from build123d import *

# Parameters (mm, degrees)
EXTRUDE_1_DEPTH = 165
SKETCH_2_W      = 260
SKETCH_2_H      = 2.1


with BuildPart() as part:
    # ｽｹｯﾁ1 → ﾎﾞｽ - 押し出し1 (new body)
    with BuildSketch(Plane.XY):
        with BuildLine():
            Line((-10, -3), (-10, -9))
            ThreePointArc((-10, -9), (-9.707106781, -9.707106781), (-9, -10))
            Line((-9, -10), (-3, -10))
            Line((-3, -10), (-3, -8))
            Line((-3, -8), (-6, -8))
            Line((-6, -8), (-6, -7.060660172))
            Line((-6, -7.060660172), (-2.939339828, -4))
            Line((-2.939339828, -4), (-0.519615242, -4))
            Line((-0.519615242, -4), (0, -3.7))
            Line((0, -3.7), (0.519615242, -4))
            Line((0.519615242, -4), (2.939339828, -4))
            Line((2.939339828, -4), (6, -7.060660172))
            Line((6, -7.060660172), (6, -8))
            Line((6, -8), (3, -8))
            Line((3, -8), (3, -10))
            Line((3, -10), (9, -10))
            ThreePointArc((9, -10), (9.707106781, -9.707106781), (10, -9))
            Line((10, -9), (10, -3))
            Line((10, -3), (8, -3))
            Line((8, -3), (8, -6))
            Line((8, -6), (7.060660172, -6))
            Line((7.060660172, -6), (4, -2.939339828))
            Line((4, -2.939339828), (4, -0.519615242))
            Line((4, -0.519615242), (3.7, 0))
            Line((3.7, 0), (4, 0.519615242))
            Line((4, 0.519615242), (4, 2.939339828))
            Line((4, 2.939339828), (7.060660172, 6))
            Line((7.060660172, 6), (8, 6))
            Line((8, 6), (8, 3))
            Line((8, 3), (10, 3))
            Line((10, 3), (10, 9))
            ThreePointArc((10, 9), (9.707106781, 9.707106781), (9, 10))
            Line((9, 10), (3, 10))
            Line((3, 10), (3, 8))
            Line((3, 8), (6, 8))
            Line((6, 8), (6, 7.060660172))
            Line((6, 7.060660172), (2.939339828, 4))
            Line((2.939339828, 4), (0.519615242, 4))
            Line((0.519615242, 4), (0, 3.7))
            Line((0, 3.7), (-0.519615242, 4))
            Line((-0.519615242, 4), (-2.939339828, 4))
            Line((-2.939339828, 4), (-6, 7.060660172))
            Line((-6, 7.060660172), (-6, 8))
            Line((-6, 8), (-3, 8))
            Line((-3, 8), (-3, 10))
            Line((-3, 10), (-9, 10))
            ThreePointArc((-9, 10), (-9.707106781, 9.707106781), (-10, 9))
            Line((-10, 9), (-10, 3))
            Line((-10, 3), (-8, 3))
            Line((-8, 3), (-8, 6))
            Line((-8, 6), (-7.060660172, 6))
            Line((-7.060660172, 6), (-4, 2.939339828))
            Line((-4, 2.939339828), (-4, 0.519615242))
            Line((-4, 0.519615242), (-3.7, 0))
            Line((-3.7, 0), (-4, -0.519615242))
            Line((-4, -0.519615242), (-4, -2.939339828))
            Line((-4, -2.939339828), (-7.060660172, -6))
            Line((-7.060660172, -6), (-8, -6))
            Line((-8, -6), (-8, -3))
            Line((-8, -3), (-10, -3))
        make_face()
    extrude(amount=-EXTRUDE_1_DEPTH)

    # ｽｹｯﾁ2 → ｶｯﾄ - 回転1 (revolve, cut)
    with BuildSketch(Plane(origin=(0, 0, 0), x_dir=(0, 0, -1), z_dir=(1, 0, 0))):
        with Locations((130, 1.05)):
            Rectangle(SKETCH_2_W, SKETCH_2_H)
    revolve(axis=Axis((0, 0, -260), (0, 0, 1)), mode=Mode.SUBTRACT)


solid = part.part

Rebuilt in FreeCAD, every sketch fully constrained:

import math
import FreeCAD as App
import Part
import Sketcher

V = App.Vector
Q = App.Units.Quantity

doc = App.newDocument("Part")
body = doc.addObject("PartDesign::Body", "Body")

# Sketch on XY plane
sketch1 = body.newObject("Sketcher::SketchObject", "Sketch")
sketch1.AttachmentSupport = (doc.getObject("XY_Plane"), [""])
sketch1.MapMode = "FlatFace"
sketch1.addGeometry([
    Part.LineSegment(V(-10, -3, 0), V(-10, -9, 0)),  # 0
    Part.ArcOfCircle(Part.Circle(V(-9, -9, 0), V(0, 0, 1), 1), math.radians(-180), math.radians(-90)),  # 1
    Part.LineSegment(V(-9, -10, 0), V(-3, -10, 0)),  # 2
    Part.LineSegment(V(-3, -10, 0), V(-3, -8, 0)),  # 3
    Part.LineSegment(V(-3, -8, 0), V(-6, -8, 0)),  # 4
    Part.LineSegment(V(-6, -8, 0), V(-6, -7.1, 0)),  # 5
    Part.LineSegment(V(-6, -7.1, 0), V(-2.9, -4, 0)),  # 6
    Part.LineSegment(V(-2.9, -4, 0), V(-0.5, -4, 0)),  # 7
    Part.LineSegment(V(-0.5, -4, 0), V(0, -3.7, 0)),  # 8
    Part.LineSegment(V(0, -3.7, 0), V(0.5, -4, 0)),  # 9
    Part.LineSegment(V(0.5, -4, 0), V(2.9, -4, 0)),  # 10
    Part.LineSegment(V(2.9, -4, 0), V(6, -7.1, 0)),  # 11
    Part.LineSegment(V(6, -7.1, 0), V(6, -8, 0)),  # 12
    Part.LineSegment(V(6, -8, 0), V(3, -8, 0)),  # 13
    Part.LineSegment(V(3, -8, 0), V(3, -10, 0)),  # 14
    Part.LineSegment(V(3, -10, 0), V(9, -10, 0)),  # 15
    Part.ArcOfCircle(Part.Circle(V(9, -9, 0), V(0, 0, 1), 1), math.radians(-90), math.radians(0)),  # 16
    Part.LineSegment(V(10, -9, 0), V(10, -3, 0)),  # 17
    Part.LineSegment(V(10, -3, 0), V(8, -3, 0)),  # 18
    Part.LineSegment(V(8, -3, 0), V(8, -6, 0)),  # 19
    Part.LineSegment(V(8, -6, 0), V(7.1, -6, 0)),  # 20
    Part.LineSegment(V(7.1, -6, 0), V(4, -2.9, 0)),  # 21
    Part.LineSegment(V(4, -2.9, 0), V(4, -0.5, 0)),  # 22
    Part.LineSegment(V(4, -0.5, 0), V(3.7, 0, 0)),  # 23
    Part.LineSegment(V(3.7, 0, 0), V(4, 0.5, 0)),  # 24
    Part.LineSegment(V(4, 0.5, 0), V(4, 2.9, 0)),  # 25
    Part.LineSegment(V(4, 2.9, 0), V(7.1, 6, 0)),  # 26
    Part.LineSegment(V(7.1, 6, 0), V(8, 6, 0)),  # 27
    Part.LineSegment(V(8, 6, 0), V(8, 3, 0)),  # 28
    Part.LineSegment(V(8, 3, 0), V(10, 3, 0)),  # 29
    Part.LineSegment(V(10, 3, 0), V(10, 9, 0)),  # 30
    Part.ArcOfCircle(Part.Circle(V(9, 9, 0), V(0, 0, 1), 1), math.radians(0), math.radians(90)),  # 31
    Part.LineSegment(V(9, 10, 0), V(3, 10, 0)),  # 32
    Part.LineSegment(V(3, 10, 0), V(3, 8, 0)),  # 33
    Part.LineSegment(V(3, 8, 0), V(6, 8, 0)),  # 34
    Part.LineSegment(V(6, 8, 0), V(6, 7.1, 0)),  # 35
    Part.LineSegment(V(6, 7.1, 0), V(2.9, 4, 0)),  # 36
    Part.LineSegment(V(2.9, 4, 0), V(0.5, 4, 0)),  # 37
    Part.LineSegment(V(0.5, 4, 0), V(0, 3.7, 0)),  # 38
    Part.LineSegment(V(0, 3.7, 0), V(-0.5, 4, 0)),  # 39
    Part.LineSegment(V(-0.5, 4, 0), V(-2.9, 4, 0)),  # 40
    Part.LineSegment(V(-2.9, 4, 0), V(-6, 7.1, 0)),  # 41
    Part.LineSegment(V(-6, 7.1, 0), V(-6, 8, 0)),  # 42
    Part.LineSegment(V(-6, 8, 0), V(-3, 8, 0)),  # 43
    Part.LineSegment(V(-3, 8, 0), V(-3, 10, 0)),  # 44
    Part.LineSegment(V(-3, 10, 0), V(-9, 10, 0)),  # 45
    Part.ArcOfCircle(Part.Circle(V(-9, 9, 0), V(0, 0, 1), 1), math.radians(90), math.radians(180)),  # 46
    Part.LineSegment(V(-10, 9, 0), V(-10, 3, 0)),  # 47
    Part.LineSegment(V(-10, 3, 0), V(-8, 3, 0)),  # 48
    Part.LineSegment(V(-8, 3, 0), V(-8, 6, 0)),  # 49
    Part.LineSegment(V(-8, 6, 0), V(-7.1, 6, 0)),  # 50
    Part.LineSegment(V(-7.1, 6, 0), V(-4, 2.9, 0)),  # 51
    Part.LineSegment(V(-4, 2.9, 0), V(-4, 0.5, 0)),  # 52
    Part.LineSegment(V(-4, 0.5, 0), V(-3.7, 0, 0)),  # 53
    Part.LineSegment(V(-3.7, 0, 0), V(-4, -0.5, 0)),  # 54
    Part.LineSegment(V(-4, -0.5, 0), V(-4, -2.9, 0)),  # 55
    Part.LineSegment(V(-4, -2.9, 0), V(-7.1, -6, 0)),  # 56
    Part.LineSegment(V(-7.1, -6, 0), V(-8, -6, 0)),  # 57
    Part.LineSegment(V(-8, -6, 0), V(-8, -3, 0)),  # 58
    Part.LineSegment(V(-8, -3, 0), V(-10, -3, 0)),  # 59
], False)
sketch1.addConstraint([
    Sketcher.Constraint("Tangent", 0, 2, 1, 1),
    Sketcher.Constraint("Tangent", 1, 2, 2, 1),
    Sketcher.Constraint("Coincident", 2, 2, 3, 1),
    Sketcher.Constraint("Coincident", 3, 2, 4, 1),
    Sketcher.Constraint("Coincident", 4, 2, 5, 1),
    Sketcher.Constraint("Coincident", 5, 2, 6, 1),
    Sketcher.Constraint("Coincident", 6, 2, 7, 1),
    Sketcher.Constraint("Coincident", 7, 2, 8, 1),
    Sketcher.Constraint("Coincident", 8, 2, 9, 1),
    Sketcher.Constraint("Coincident", 9, 2, 10, 1),
    Sketcher.Constraint("Coincident", 10, 2, 11, 1),
    Sketcher.Constraint("Coincident", 11, 2, 12, 1),
    Sketcher.Constraint("Coincident", 12, 2, 13, 1),
    Sketcher.Constraint("Coincident", 13, 2, 14, 1),
    Sketcher.Constraint("Coincident", 14, 2, 15, 1),
    Sketcher.Constraint("Tangent", 15, 2, 16, 1),
    Sketcher.Constraint("Tangent", 16, 2, 17, 1),
    Sketcher.Constraint("Coincident", 17, 2, 18, 1),
    Sketcher.Constraint("Coincident", 18, 2, 19, 1),
    Sketcher.Constraint("Coincident", 19, 2, 20, 1),
    Sketcher.Constraint("Coincident", 20, 2, 21, 1),
    Sketcher.Constraint("Coincident", 21, 2, 22, 1),
    Sketcher.Constraint("Coincident", 22, 2, 23, 1),
    Sketcher.Constraint("Coincident", 23, 2, 24, 1),
    Sketcher.Constraint("Coincident", 24, 2, 25, 1),
    Sketcher.Constraint("Coincident", 25, 2, 26, 1),
    Sketcher.Constraint("Coincident", 26, 2, 27, 1),
    Sketcher.Constraint("Coincident", 27, 2, 28, 1),
    Sketcher.Constraint("Coincident", 28, 2, 29, 1),
    Sketcher.Constraint("Coincident", 29, 2, 30, 1),
    Sketcher.Constraint("Tangent", 30, 2, 31, 1),
    Sketcher.Constraint("Tangent", 31, 2, 32, 1),
    Sketcher.Constraint("Coincident", 32, 2, 33, 1),
    Sketcher.Constraint("Coincident", 33, 2, 34, 1),
    Sketcher.Constraint("Coincident", 34, 2, 35, 1),
    Sketcher.Constraint("Coincident", 35, 2, 36, 1),
    Sketcher.Constraint("Coincident", 36, 2, 37, 1),
    Sketcher.Constraint("Coincident", 37, 2, 38, 1),
    Sketcher.Constraint("Coincident", 38, 2, 39, 1),
    Sketcher.Constraint("Coincident", 39, 2, 40, 1),
    Sketcher.Constraint("Coincident", 40, 2, 41, 1),
    Sketcher.Constraint("Coincident", 41, 2, 42, 1),
    Sketcher.Constraint("Coincident", 42, 2, 43, 1),
    Sketcher.Constraint("Coincident", 43, 2, 44, 1),
    Sketcher.Constraint("Coincident", 44, 2, 45, 1),
    Sketcher.Constraint("Tangent", 45, 2, 46, 1),
    Sketcher.Constraint("Tangent", 46, 2, 47, 1),
    Sketcher.Constraint("Coincident", 47, 2, 48, 1),
    Sketcher.Constraint("Coincident", 48, 2, 49, 1),
    Sketcher.Constraint("Coincident", 49, 2, 50, 1),
    Sketcher.Constraint("Coincident", 50, 2, 51, 1),
    Sketcher.Constraint("Coincident", 51, 2, 52, 1),
    Sketcher.Constraint("Coincident", 52, 2, 53, 1),
    Sketcher.Constraint("Coincident", 53, 2, 54, 1),
    Sketcher.Constraint("Coincident", 54, 2, 55, 1),
    Sketcher.Constraint("Coincident", 55, 2, 56, 1),
    Sketcher.Constraint("Coincident", 56, 2, 57, 1),
    Sketcher.Constraint("Coincident", 57, 2, 58, 1),
    Sketcher.Constraint("Coincident", 58, 2, 59, 1),
    Sketcher.Constraint("Coincident", 59, 2, 0, 1),
    Sketcher.Constraint("Vertical", 0),
    Sketcher.Constraint("Horizontal", 2),
    Sketcher.Constraint("Vertical", 3),
    Sketcher.Constraint("Horizontal", 4),
    Sketcher.Constraint("Vertical", 5),
    Sketcher.Constraint("Horizontal", 7),
    Sketcher.Constraint("Horizontal", 10),
    Sketcher.Constraint("Vertical", 12),
    Sketcher.Constraint("Horizontal", 13),
    Sketcher.Constraint("Vertical", 14),
    Sketcher.Constraint("Horizontal", 15),
    Sketcher.Constraint("Vertical", 17),
    Sketcher.Constraint("Horizontal", 18),
    Sketcher.Constraint("Vertical", 19),
    Sketcher.Constraint("Horizontal", 20),
    Sketcher.Constraint("Vertical", 22),
    Sketcher.Constraint("Vertical", 25),
    Sketcher.Constraint("Horizontal", 27),
    Sketcher.Constraint("Vertical", 28),
    Sketcher.Constraint("Horizontal", 29),
    Sketcher.Constraint("Vertical", 30),
    Sketcher.Constraint("Horizontal", 32),
    Sketcher.Constraint("Vertical", 33),
    Sketcher.Constraint("Horizontal", 34),
    Sketcher.Constraint("Vertical", 35),
    Sketcher.Constraint("Horizontal", 37),
    Sketcher.Constraint("Horizontal", 40),
    Sketcher.Constraint("Vertical", 42),
    Sketcher.Constraint("Horizontal", 43),
    Sketcher.Constraint("Vertical", 44),
    Sketcher.Constraint("Horizontal", 45),
    Sketcher.Constraint("Vertical", 47),
    Sketcher.Constraint("Horizontal", 48),
    Sketcher.Constraint("Vertical", 49),
    Sketcher.Constraint("Horizontal", 50),
    Sketcher.Constraint("Vertical", 52),
    Sketcher.Constraint("Vertical", 55),
    Sketcher.Constraint("Horizontal", 57),
    Sketcher.Constraint("Vertical", 58),
    Sketcher.Constraint("Horizontal", 59),
    Sketcher.Constraint("Equal", 1, 16),
    Sketcher.Constraint("Equal", 16, 31),
    Sketcher.Constraint("Equal", 31, 46),
    Sketcher.Constraint("Symmetric", 1, 3, 31, 3, -1, 1),
    Sketcher.Constraint("Symmetric", 16, 3, 46, 3, -1, 1),
    Sketcher.Constraint("Symmetric", 3, 2, 33, 2, -1, 1),
    Sketcher.Constraint("Symmetric", 5, 2, 35, 2, -1, 1),
    Sketcher.Constraint("Symmetric", 6, 2, 36, 2, -1, 1),
    Sketcher.Constraint("Symmetric", 8, 2, 38, 2, -1, 1),
    Sketcher.Constraint("Symmetric", 9, 2, 39, 2, -1, 1),
    Sketcher.Constraint("Symmetric", 11, 2, 41, 2, -1, 1),
    Sketcher.Constraint("Symmetric", 13, 2, 43, 2, -1, 1),
    Sketcher.Constraint("Symmetric", 18, 2, 48, 2, -1, 1),
    Sketcher.Constraint("Symmetric", 20, 2, 50, 2, -1, 1),
    Sketcher.Constraint("Symmetric", 21, 2, 51, 2, -1, 1),
    Sketcher.Constraint("Symmetric", 23, 2, 53, 2, -1, 1),
    Sketcher.Constraint("Symmetric", 24, 2, 54, 2, -1, 1),
    Sketcher.Constraint("Symmetric", 26, 2, 56, 2, -1, 1),
    Sketcher.Constraint("Symmetric", 28, 2, 58, 2, -1, 1),
    Sketcher.Constraint("Symmetric", 1, 3, 16, 3, -2),
    Sketcher.Constraint("Symmetric", 7, 2, 9, 2, -2),
    Sketcher.Constraint("Symmetric", 5, 2, 11, 2, -2),
    Sketcher.Constraint("Symmetric", 3, 2, 13, 2, -2),
    Sketcher.Constraint("Symmetric", 28, 2, 48, 2, -2),
    Sketcher.Constraint("Symmetric", 26, 2, 50, 2, -2),
    Sketcher.Constraint("Symmetric", 25, 2, 51, 2, -2),
    Sketcher.Constraint("PointOnObject", 8, 2, -2),
    Sketcher.Constraint("PointOnObject", 23, 2, -1),
    Sketcher.Constraint("Perpendicular", 6, 11),
    Sketcher.Constraint("Parallel", 11, 21),
    Sketcher.Constraint("Perpendicular", 8, 23),
    Sketcher.Constraint("Perpendicular", 9, 24),
    Sketcher.Constraint("Perpendicular", 21, 26),
    Sketcher.Constraint("Perpendicular", 23, 38),
    Sketcher.Constraint("Perpendicular", 36, 41),
    Sketcher.Constraint("Perpendicular", 38, 53),
    Sketcher.Constraint("Perpendicular", 51, 56),
    Sketcher.Constraint("Equal", 45, 0),
    Sketcher.Constraint("Equal", 59, 3),
    Sketcher.Constraint("Equal", 57, 5),
    Sketcher.Constraint("Equal", 43, 19),
    Sketcher.Constraint("Equal", 40, 22),
    Sketcher.Constraint("Equal", 11, 21),
    Sketcher.Constraint("Equal", 9, 23),
    Sketcher.Constraint("Radius", 1, 1.0),
    Sketcher.Constraint("DistanceX", 2, 1, 2, 2, 6.0),
    Sketcher.Constraint("DistanceX", 4, 2, 4, 1, 3.0),
    Sketcher.Constraint("DistanceX", 18, 2, 18, 1, 2.0),
    Sketcher.Constraint("Angle", 8, Q("30 deg")),
    Sketcher.Constraint("DistanceX", 1, 3, -1, 1, 9.0),
    Sketcher.Constraint("DistanceY", 6, 2, -1, 1, 4.0),
    Sketcher.Constraint("Distance", 8, 0.6),
    Sketcher.Constraint("DistanceX", 20, 2, 20, 1, 0.93934),
])
pad1 = body.newObject("PartDesign::Pad", "Pad")
pad1.Profile = sketch1
pad1.Length = 165
pad1.Reversed = True

# Sketch on YZ plane
sketch2 = body.newObject("Sketcher::SketchObject", "Sketch001")
sketch2.AttachmentSupport = (doc.getObject("YZ_Plane"), [""])
sketch2.MapMode = "FlatFace"
sketch2.addGeometry([
    Part.LineSegment(V(2.1, 0, 0), V(0, 0, 0)),
    Part.LineSegment(V(0, 0, 0), V(0, -260, 0)),
    Part.LineSegment(V(0, -260, 0), V(2.1, -260, 0)),
    Part.LineSegment(V(2.1, -260, 0), V(2.1, 0, 0)),
], False)
sketch2.addConstraint([
    Sketcher.Constraint("Coincident", 0, 2, 1, 1),
    Sketcher.Constraint("Coincident", 1, 2, 2, 1),
    Sketcher.Constraint("Coincident", 2, 2, 3, 1),
    Sketcher.Constraint("Coincident", 3, 2, 0, 1),
    Sketcher.Constraint("Horizontal", 0),
    Sketcher.Constraint("Vertical", 1),
    Sketcher.Constraint("Horizontal", 2),
    Sketcher.Constraint("Vertical", 3),
    Sketcher.Constraint("Coincident", 0, 2, -1, 1),
    Sketcher.Constraint("DistanceY", 1, 2, 1, 1, 260.0),
    Sketcher.Constraint("DistanceX", 0, 2, 0, 1, 2.1),
])
groove = body.newObject("PartDesign::Groove", "Groove")
groove.Profile = sketch2
groove.ReferenceAxis = (sketch2, ["V_Axis"])
groove.Angle = 360

doc.recompute()
